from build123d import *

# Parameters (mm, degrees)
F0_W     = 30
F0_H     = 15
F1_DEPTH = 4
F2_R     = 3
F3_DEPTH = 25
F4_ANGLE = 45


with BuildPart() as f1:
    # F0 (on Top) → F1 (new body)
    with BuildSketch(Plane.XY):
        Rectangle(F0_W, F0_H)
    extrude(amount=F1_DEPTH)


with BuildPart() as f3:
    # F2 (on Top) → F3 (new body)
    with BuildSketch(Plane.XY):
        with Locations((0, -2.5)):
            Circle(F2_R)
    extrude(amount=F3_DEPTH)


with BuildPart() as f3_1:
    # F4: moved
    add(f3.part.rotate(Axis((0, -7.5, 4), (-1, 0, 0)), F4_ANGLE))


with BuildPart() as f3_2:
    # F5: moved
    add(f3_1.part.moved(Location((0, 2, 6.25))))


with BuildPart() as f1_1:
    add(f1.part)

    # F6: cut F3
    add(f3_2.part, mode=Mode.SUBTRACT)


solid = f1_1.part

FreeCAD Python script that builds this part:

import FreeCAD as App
import Part
import Sketcher
from FreeCAD import Vector


def add_polygon(sketch, points):
    """Adds a closed chain of lines whose ends are joined by coincident constraints."""
    first, n = sketch.GeometryCount, len(points)
    for a, b in zip(points, points[1:] + points[:1]):
        sketch.addGeometry(Part.LineSegment(App.Vector(*a, 0), App.Vector(*b, 0)), False)
    for i in range(n):
        sketch.addConstraint(Sketcher.Constraint("Coincident", first + i, 2, first + (i + 1) % n, 1))

doc = App.newDocument("Part")
body = doc.addObject("PartDesign::Body", "Body")

sketch1 = body.newObject("Sketcher::SketchObject", "Sketch")
sketch1.AttachmentSupport = (doc.getObject("XY_Plane"), [""])
sketch1.MapMode = "FlatFace"
add_polygon(sketch1, [(-15, 7.5), (-15, -7.5), (15, -7.5), (15, 7.5)])
sketch1.addConstraint([
    Sketcher.Constraint("Vertical", 0),
    Sketcher.Constraint("Horizontal", 1),
    Sketcher.Constraint("Vertical", 2),
    Sketcher.Constraint("Horizontal", 3),
    Sketcher.Constraint("Symmetric", 0, 2, 2, 2, -1, 1),
    Sketcher.Constraint("DistanceX", 1, 1, 1, 2, 30.0),
    Sketcher.Constraint("DistanceY", 0, 2, 0, 1, 15.0),
])
pad1 = body.newObject("PartDesign::Pad", "Pad")
pad1.Profile = sketch1
pad1.Length = 4
body2 = doc.addObject("PartDesign::Body", "Body001")

sketch2 = body2.newObject("Sketcher::SketchObject", "Sketch001")
sketch2.AttachmentSupport = (doc.getObject("XY_Plane001"), [""])
sketch2.MapMode = "FlatFace"
sketch2.addGeometry(Part.Circle(Vector(0, -2.5, 0), Vector(0, 0, 1), 3), False)
sketch2.addConstraint([
    Sketcher.Constraint("PointOnObject", 0, 3, -2),
    Sketcher.Constraint("Diameter", 0, 6.0),
    Sketcher.Constraint("DistanceY", 0, 3, -1, 1, 2.5),
])
pad2 = body2.newObject("PartDesign::Pad", "Pad001")
pad2.Profile = sketch2
pad2.Length = 25
body3 = doc.addObject("PartDesign::Body", "Body002")
doc.recompute()

body2.Placement = App.Placement(Vector(0, -5.025126, -4.131728), App.Rotation(Vector(-1, 0, 0), 45))
boolean = body3.newObject("PartDesign::Boolean", "Boolean")
boolean.Type = "Fuse"
boolean.addObjects([body2])
body4 = doc.addObject("PartDesign::Body", "Body003")
doc.recompute()

body3.Placement = App.Placement(Vector(0, 2, 6.25), App.Rotation(Vector(0, 0, 1), 0))
boolean2 = body4.newObject("PartDesign::Boolean", "Boolean001")
boolean2.Type = "Fuse"
boolean2.addObjects([body3])
doc.recompute()

boolean3 = body.newObject("PartDesign::Boolean", "Boolean002")
boolean3.Type = "Cut"
boolean3.addObjects([body4])

doc.recompute()
